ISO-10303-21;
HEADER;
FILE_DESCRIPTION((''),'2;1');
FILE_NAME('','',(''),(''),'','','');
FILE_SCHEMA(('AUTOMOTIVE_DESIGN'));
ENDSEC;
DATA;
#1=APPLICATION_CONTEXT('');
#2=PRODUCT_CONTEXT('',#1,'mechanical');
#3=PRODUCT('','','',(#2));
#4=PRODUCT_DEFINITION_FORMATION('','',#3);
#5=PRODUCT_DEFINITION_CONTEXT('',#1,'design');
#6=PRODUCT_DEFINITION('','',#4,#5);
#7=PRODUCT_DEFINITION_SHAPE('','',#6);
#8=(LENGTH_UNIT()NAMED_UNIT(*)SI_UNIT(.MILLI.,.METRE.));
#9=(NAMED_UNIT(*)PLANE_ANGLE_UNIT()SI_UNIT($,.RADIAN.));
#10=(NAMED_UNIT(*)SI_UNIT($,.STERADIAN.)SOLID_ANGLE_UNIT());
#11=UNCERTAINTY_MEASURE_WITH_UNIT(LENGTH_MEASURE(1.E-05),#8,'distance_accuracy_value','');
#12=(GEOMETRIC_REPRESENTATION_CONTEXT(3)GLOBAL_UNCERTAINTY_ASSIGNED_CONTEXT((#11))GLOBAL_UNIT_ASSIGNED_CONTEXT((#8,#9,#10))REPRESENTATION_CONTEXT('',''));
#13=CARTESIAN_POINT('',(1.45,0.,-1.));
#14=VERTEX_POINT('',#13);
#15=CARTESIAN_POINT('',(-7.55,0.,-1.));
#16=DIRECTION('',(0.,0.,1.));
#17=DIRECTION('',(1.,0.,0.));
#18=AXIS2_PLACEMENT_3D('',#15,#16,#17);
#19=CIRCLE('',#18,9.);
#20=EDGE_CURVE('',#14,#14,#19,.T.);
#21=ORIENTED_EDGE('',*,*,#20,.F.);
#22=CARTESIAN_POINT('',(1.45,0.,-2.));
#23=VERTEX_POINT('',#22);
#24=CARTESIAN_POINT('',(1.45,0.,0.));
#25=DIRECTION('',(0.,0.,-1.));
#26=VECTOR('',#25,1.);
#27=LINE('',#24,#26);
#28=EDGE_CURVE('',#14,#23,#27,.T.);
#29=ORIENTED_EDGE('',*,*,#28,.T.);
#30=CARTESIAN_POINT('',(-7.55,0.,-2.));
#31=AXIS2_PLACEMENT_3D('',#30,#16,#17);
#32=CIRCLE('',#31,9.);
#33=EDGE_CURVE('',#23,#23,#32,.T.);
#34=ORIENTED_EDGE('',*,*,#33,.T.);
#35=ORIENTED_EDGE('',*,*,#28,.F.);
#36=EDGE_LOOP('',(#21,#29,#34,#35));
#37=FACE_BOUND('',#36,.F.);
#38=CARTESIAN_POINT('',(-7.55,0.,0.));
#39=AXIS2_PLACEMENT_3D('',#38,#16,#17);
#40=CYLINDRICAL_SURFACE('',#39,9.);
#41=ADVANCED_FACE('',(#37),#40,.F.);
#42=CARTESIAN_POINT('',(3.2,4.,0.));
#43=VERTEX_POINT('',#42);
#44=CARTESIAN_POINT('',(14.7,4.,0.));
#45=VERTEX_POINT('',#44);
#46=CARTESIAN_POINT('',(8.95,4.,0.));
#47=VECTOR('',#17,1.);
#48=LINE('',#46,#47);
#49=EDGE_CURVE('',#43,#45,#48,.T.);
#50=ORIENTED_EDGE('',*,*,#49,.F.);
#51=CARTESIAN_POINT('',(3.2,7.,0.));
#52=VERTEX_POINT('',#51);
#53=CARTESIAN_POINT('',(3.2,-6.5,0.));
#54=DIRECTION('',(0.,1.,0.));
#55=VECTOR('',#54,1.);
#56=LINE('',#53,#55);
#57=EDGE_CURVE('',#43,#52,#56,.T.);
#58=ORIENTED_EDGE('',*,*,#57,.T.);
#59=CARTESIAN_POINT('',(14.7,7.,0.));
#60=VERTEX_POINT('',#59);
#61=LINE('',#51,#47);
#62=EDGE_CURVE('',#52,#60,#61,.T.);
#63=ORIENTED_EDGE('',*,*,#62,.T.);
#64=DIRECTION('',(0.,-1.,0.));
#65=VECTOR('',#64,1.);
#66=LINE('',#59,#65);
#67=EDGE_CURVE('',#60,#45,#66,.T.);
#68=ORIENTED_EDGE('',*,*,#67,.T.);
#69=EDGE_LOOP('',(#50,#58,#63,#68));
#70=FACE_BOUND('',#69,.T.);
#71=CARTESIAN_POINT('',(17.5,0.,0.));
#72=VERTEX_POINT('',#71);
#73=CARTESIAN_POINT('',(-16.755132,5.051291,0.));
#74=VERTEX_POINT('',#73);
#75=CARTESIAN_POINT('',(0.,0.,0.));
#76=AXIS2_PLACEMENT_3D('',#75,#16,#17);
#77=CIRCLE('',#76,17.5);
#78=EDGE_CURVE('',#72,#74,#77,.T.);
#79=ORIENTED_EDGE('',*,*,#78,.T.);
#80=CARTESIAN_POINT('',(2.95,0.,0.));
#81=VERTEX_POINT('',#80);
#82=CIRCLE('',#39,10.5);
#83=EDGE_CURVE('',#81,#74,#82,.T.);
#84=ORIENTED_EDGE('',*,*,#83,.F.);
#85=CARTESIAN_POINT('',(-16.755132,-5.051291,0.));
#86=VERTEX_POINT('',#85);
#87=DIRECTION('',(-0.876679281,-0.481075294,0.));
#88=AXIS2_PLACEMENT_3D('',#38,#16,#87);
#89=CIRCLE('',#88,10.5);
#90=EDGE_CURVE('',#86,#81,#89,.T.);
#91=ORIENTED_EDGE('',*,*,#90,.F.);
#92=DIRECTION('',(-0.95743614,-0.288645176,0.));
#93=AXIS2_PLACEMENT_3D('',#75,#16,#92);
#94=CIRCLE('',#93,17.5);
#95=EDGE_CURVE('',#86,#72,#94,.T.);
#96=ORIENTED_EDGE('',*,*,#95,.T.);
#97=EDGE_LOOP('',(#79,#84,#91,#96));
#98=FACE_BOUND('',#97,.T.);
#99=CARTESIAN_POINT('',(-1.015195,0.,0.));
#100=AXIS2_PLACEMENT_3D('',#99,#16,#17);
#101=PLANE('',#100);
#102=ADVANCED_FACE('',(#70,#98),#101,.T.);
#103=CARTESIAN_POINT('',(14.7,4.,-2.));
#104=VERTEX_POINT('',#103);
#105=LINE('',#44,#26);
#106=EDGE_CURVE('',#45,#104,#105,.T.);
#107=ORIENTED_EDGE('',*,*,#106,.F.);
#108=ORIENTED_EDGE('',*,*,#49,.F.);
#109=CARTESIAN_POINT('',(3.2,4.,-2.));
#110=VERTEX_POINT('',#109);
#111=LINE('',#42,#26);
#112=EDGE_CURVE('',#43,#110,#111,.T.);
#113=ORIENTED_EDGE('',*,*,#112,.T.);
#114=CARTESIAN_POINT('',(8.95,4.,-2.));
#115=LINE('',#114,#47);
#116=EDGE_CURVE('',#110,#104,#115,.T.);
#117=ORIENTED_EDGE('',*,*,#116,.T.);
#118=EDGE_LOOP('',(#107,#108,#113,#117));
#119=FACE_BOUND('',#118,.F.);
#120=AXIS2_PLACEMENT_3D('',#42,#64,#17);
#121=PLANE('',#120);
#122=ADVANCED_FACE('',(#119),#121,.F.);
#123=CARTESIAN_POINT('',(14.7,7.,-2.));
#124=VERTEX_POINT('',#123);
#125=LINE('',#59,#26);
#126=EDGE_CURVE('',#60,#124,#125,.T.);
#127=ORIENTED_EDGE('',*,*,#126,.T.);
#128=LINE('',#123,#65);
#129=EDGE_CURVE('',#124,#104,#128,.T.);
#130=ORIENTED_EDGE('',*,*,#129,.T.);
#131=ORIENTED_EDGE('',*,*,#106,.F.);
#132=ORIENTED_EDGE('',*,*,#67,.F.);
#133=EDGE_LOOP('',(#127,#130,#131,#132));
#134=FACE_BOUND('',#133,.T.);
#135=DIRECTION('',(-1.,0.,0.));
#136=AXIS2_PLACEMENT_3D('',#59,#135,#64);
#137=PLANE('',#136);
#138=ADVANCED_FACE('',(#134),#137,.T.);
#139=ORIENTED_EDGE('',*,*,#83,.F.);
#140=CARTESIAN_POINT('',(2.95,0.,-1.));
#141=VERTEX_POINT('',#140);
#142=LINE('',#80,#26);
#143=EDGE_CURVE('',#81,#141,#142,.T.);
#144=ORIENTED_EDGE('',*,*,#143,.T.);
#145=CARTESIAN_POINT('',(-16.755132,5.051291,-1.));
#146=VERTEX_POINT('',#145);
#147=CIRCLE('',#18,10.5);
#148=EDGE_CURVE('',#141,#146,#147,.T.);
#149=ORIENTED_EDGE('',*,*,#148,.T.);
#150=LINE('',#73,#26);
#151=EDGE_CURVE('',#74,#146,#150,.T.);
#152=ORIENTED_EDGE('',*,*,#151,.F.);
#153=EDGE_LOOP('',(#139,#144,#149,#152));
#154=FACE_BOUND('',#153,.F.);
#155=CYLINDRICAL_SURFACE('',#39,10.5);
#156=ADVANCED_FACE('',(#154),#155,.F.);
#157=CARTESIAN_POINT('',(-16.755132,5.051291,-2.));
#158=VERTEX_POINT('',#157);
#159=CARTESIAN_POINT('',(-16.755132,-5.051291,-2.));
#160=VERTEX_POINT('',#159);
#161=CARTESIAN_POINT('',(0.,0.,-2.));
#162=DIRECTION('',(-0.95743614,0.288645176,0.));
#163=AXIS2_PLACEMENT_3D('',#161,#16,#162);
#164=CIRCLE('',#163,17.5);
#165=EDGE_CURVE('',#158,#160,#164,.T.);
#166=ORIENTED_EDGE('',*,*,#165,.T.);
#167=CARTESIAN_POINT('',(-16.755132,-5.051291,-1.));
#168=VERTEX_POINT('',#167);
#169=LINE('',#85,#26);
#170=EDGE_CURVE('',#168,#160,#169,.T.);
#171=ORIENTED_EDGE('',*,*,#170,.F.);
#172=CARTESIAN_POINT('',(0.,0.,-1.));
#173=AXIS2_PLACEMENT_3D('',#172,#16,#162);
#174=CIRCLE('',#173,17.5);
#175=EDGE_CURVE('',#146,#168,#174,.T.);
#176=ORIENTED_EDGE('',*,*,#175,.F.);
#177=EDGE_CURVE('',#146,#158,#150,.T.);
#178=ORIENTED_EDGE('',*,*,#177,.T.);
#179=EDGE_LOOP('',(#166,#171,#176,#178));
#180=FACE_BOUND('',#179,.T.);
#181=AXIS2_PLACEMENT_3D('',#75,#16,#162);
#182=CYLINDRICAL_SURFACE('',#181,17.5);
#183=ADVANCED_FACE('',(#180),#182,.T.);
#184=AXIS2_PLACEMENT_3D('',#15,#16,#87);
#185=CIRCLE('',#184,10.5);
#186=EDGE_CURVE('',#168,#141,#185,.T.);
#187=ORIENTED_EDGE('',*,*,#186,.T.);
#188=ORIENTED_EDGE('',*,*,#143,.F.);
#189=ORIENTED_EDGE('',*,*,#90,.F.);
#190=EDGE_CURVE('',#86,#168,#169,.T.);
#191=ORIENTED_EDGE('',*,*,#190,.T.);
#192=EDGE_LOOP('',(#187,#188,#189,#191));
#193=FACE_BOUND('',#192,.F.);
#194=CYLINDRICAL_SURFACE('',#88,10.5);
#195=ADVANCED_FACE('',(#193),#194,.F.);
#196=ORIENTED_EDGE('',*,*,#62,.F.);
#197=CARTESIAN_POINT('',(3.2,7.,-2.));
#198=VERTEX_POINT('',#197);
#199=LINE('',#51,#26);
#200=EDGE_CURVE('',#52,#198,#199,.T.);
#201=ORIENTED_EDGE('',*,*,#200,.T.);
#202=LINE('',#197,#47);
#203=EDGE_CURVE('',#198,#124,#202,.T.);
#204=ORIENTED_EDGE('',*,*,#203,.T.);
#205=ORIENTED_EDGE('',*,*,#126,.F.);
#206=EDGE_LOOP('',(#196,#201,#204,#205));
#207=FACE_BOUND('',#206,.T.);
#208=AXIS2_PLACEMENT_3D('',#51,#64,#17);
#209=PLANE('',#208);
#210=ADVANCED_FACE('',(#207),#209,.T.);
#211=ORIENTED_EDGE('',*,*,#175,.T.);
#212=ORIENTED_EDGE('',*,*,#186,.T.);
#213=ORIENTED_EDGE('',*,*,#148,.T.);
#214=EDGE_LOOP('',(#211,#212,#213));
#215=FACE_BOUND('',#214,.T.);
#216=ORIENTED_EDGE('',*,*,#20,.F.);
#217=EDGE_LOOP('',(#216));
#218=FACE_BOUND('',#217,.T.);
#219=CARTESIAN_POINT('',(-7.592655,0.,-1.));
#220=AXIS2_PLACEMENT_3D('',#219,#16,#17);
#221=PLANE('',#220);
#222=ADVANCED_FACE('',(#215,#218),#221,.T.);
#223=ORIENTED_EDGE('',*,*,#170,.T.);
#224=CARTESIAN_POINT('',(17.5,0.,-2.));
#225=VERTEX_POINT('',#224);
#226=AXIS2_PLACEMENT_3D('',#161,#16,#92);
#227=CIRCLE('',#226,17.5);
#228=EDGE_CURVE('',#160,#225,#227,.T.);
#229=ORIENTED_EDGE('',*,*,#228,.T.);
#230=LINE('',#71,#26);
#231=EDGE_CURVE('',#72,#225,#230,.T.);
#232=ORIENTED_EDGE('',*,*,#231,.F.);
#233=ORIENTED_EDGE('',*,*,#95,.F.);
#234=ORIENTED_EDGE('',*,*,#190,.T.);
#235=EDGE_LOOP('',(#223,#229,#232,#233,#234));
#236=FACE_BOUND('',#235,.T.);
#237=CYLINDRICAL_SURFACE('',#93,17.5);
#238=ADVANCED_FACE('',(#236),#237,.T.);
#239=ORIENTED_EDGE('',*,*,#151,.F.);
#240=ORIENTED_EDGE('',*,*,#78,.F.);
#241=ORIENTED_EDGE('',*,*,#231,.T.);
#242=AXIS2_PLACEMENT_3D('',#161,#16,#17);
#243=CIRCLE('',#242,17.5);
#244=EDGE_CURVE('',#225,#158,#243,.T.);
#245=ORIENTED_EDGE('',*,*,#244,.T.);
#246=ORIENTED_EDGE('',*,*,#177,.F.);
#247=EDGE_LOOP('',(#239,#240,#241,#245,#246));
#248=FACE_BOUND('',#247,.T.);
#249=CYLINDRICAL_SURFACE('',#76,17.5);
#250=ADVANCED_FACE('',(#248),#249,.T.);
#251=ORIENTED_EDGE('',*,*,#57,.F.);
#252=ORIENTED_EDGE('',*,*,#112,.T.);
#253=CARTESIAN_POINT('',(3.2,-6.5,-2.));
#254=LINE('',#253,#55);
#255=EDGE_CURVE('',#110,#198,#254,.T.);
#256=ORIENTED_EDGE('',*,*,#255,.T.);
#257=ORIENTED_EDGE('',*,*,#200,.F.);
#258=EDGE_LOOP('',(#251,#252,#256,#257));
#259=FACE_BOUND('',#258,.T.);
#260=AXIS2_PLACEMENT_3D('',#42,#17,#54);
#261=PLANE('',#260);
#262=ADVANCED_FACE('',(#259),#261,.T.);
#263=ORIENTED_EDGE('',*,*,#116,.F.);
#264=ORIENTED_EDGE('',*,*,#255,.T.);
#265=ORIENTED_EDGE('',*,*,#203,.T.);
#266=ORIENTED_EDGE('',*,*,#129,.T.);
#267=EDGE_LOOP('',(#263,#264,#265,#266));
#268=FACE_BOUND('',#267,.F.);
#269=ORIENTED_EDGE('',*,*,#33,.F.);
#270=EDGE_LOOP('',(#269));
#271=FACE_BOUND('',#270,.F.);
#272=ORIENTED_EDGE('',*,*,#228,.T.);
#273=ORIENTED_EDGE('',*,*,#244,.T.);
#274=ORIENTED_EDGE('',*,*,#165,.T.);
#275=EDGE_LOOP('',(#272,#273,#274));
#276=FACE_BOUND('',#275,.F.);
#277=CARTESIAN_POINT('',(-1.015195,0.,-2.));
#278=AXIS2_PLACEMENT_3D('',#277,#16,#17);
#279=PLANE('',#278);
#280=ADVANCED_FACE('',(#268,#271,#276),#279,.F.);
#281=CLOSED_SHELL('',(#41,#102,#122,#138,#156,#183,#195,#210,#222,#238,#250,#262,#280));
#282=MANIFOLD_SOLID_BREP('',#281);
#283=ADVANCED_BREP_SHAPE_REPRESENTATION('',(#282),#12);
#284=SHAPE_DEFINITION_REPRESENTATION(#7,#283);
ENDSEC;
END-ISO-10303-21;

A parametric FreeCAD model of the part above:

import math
import FreeCAD as App
import Part
import Sketcher
Q = App.Units.Quantity

doc = App.newDocument("Part")
body = doc.addObject("PartDesign::Body", "Body")

# Sketch on XY plane
sketch1 = body.newObject("Sketcher::SketchObject", "Sketch")
sketch1.AttachmentSupport = (doc.getObject("XY_Plane"), [""])
sketch1.MapMode = "FlatFace"
sketch1.addGeometry(Part.ArcOfCircle(Part.Circle(App.Vector(0, 0, 0), App.Vector(0, 0, 1), 17.5), math.radians(0), math.radians(163.223138)), False)
sketch1.addGeometry(Part.ArcOfCircle(Part.Circle(App.Vector(0, 0, 0), App.Vector(0, 0, 1), 17.5), math.radians(163.223138), math.radians(196.776862)), False)
sketch1.addGeometry(Part.ArcOfCircle(Part.Circle(App.Vector(0, 0, 0), App.Vector(0, 0, 1), 17.5), math.radians(-163.223138), math.radians(0)), False)
sketch1.addGeometry(Part.Circle(App.Vector(-7.55, 0, 0), App.Vector(0, 0, 1), 9), False)
sketch1.addGeometry(Part.LineSegment(App.Vector(14.7, 7, 0), App.Vector(14.7, 4, 0)), False)
sketch1.addGeometry(Part.LineSegment(App.Vector(14.7, 4, 0), App.Vector(3.2, 4, 0)), False)
sketch1.addGeometry(Part.LineSegment(App.Vector(3.2, 4, 0), App.Vector(3.2, 7, 0)), False)
sketch1.addGeometry(Part.LineSegment(App.Vector(3.2, 7, 0), App.Vector(14.7, 7, 0)), False)
sketch1.addConstraint(Sketcher.Constraint("Tangent", 0, 2, 1, 1))
sketch1.addConstraint(Sketcher.Constraint("Tangent", 1, 2, 2, 1))
sketch1.addConstraint(Sketcher.Constraint("Tangent", 2, 2, 0, 1))
sketch1.addConstraint(Sketcher.Constraint("Coincident", 4, 2, 5, 1))
sketch1.addConstraint(Sketcher.Constraint("Coincident", 5, 2, 6, 1))
sketch1.addConstraint(Sketcher.Constraint("Coincident", 6, 2, 7, 1))
sketch1.addConstraint(Sketcher.Constraint("Coincident", 7, 2, 4, 1))
sketch1.addConstraint(Sketcher.Constraint("Vertical", 4))
sketch1.addConstraint(Sketcher.Constraint("Horizontal", 5))
sketch1.addConstraint(Sketcher.Constraint("Vertical", 6))
sketch1.addConstraint(Sketcher.Constraint("Horizontal", 7))
sketch1.addConstraint(Sketcher.Constraint("Coincident", 0, 3, -1, 1))
sketch1.addConstraint(Sketcher.Constraint("PointOnObject", 3, 3, -1))
sketch1.addConstraint(Sketcher.Constraint("PointOnObject", 2, 2, -1))
sketch1.addConstraint(Sketcher.Constraint("Vertical", 0, 2, 1, 2))
sketch1.addConstraint(Sketcher.Constraint("Diameter", 3, Q("18 mm")))
sketch1.addConstraint(Sketcher.Constraint("Radius", 0, Q("17.5 mm")))
sketch1.addConstraint(Sketcher.Constraint("DistanceY", 4, 2, 4, 1, Q("3 mm")))
sketch1.addConstraint(Sketcher.Constraint("DistanceX", 5, 2, 5, 1, Q("11.5 mm")))
sketch1.addConstraint(Sketcher.Constraint("DistanceY", -1, 1, 4, 2, Q("4 mm")))
sketch1.addConstraint(Sketcher.Constraint("DistanceX", -1, 1, 4, 2, Q("14.7 mm")))
sketch1.addConstraint(Sketcher.Constraint("DistanceX", 3, 3, -1, 1, Q("7.55 mm")))
sketch1.addConstraint(Sketcher.Constraint("DistanceY", -1, 1, 0, 2, Q("5.051291 mm")))
pad1 = body.newObject("PartDesign::Pad", "Pad")
pad1.Profile = sketch1
pad1.Length = 2
pad1.Reversed = True

# Sketch on XY plane
sketch2 = body.newObject("Sketcher::SketchObject", "Sketch001")
sketch2.AttachmentSupport = (doc.getObject("XY_Plane"), [""])
sketch2.MapMode = "FlatFace"
sketch2.addGeometry(Part.ArcOfCircle(Part.Circle(App.Vector(-7.55, 0, 0), App.Vector(0, 0, 1), 10.5), math.radians(0), math.radians(151.244345)), False)
sketch2.addGeometry(Part.ArcOfCircle(Part.Circle(App.Vector(0, 0, 0), App.Vector(0, 0, 1), 17.5), math.radians(163.223138), math.radians(196.776862)), False)
sketch2.addGeometry(Part.ArcOfCircle(Part.Circle(App.Vector(-7.55, 0, 0), App.Vector(0, 0, 1), 10.5), math.radians(-151.244345), math.radians(0)), False)
sketch2.addGeometry(Part.Circle(App.Vector(-7.55, 0, 0), App.Vector(0, 0, 1), 9), False)
sketch2.addConstraint(Sketcher.Constraint("Coincident", 0, 2, 1, 1))
sketch2.addConstraint(Sketcher.Constraint("Coincident", 1, 2, 2, 1))
sketch2.addConstraint(Sketcher.Constraint("Tangent", 2, 2, 0, 1))
sketch2.addConstraint(Sketcher.Constraint("Coincident", 1, 3, -1, 1))
sketch2.addConstraint(Sketcher.Constraint("Coincident", 3, 3, 0, 3))
sketch2.addConstraint(Sketcher.Constraint("Equal", 0, 2))
sketch2.addConstraint(Sketcher.Constraint("PointOnObject", 0, 3, -1))
sketch2.addConstraint(Sketcher.Constraint("PointOnObject", 2, 2, -1))
sketch2.addConstraint(Sketcher.Constraint("Diameter", 3, Q("18 mm")))
sketch2.addConstraint(Sketcher.Constraint("Radius", 0, Q("10.5 mm")))
sketch2.addConstraint(Sketcher.Constraint("Radius", 1, Q("17.5 mm")))
sketch2.addConstraint(Sketcher.Constraint("DistanceX", 0, 3, -1, 1, Q("7.55 mm")))
pocket1 = body.newObject("PartDesign::Pocket", "Pocket")
pocket1.Profile = sketch2
pocket1.Length = 1

doc.recompute()
